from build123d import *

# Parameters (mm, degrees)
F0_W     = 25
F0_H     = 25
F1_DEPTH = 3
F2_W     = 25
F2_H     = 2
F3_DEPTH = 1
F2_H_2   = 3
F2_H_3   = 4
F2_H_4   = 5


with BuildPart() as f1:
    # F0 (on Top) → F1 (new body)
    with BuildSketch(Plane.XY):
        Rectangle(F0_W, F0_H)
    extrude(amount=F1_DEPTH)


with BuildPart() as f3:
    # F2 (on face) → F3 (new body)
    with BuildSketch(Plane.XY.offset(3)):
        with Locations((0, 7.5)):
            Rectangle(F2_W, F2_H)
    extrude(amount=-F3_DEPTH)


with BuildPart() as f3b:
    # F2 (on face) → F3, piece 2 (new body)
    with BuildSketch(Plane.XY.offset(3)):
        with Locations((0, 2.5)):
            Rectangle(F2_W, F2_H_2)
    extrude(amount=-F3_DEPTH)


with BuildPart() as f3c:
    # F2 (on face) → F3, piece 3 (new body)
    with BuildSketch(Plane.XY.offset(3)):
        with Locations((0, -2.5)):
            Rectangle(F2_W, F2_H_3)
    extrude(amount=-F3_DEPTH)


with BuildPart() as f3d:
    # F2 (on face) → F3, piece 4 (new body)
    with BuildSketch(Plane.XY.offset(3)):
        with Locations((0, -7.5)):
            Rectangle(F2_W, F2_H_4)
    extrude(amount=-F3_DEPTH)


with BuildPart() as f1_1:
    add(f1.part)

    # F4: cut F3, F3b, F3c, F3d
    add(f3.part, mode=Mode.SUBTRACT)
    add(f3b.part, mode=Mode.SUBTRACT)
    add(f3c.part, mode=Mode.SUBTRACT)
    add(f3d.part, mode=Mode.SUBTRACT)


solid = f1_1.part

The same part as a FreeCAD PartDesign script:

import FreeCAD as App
import Part
import Sketcher
Q = App.Units.Quantity

doc = App.newDocument("Part")
params = doc.addObject("Spreadsheet::Sheet", "Params")
for row, (alias, value) in enumerate([
    ("sketch1_width", "25 mm"),
    ("pad1_length", "3 mm"),
    ("sketch2_width", "25 mm"),
    ("sketch2_height", "2 mm"),
    ("pad2_length", "1 mm"),
    ("sketch3_width", "25 mm"),
    ("sketch3_height", "3 mm"),
    ("pad3_length", "1 mm"),
    ("sketch4_width", "25 mm"),
    ("sketch4_height", "4 mm"),
    ("pad4_length", "1 mm"),
    ("sketch5_width", "25 mm"),
    ("sketch5_height", "5 mm"),
    ("pad5_length", "1 mm"),
], start=1):
    params.set(f"A{row}", alias)
    params.set(f"B{row}", "=" + value)
    params.setAlias(f"B{row}", alias)

body = doc.addObject("PartDesign::Body", "Body")

sketch1 = body.newObject("Sketcher::SketchObject", "Sketch")
sketch1.AttachmentSupport = (doc.getObject("XY_Plane"), [""])
sketch1.MapMode = "FlatFace"
sketch1.addGeometry([
    Part.LineSegment(App.Vector(-12, 12, 0), App.Vector(-12, -12, 0)),
    Part.LineSegment(App.Vector(-12, -12, 0), App.Vector(12, -12, 0)),
    Part.LineSegment(App.Vector(12, -12, 0), App.Vector(12, 12, 0)),
    Part.LineSegment(App.Vector(12, 12, 0), App.Vector(-12, 12, 0)),
], False)
sketch1.addConstraint([
    Sketcher.Constraint("Coincident", 0, 2, 1, 1),
    Sketcher.Constraint("Coincident", 1, 2, 2, 1),
    Sketcher.Constraint("Coincident", 2, 2, 3, 1),
    Sketcher.Constraint("Coincident", 3, 2, 0, 1),
    Sketcher.Constraint("Vertical", 0),
    Sketcher.Constraint("Horizontal", 1),
    Sketcher.Constraint("Vertical", 2),
    Sketcher.Constraint("Horizontal", 3),
    Sketcher.Constraint("Symmetric", 0, 2, 2, 2, -1, 1),
    Sketcher.Constraint("Equal", 3, 0),
    Sketcher.Constraint("DistanceX", 1, 1, 1, 2, Q("25 mm")),
])
sketch1.setExpression("Constraints[10]", "Params.sketch1_width")
pad1 = body.newObject("PartDesign::Pad", "Pad")
pad1.Profile = sketch1
pad1.setExpression("Length", "Params.pad1_length")
body2 = doc.addObject("PartDesign::Body", "Body001")

sketch2 = body2.newObject("Sketcher::SketchObject", "Sketch001")
sketch2.AttachmentSupport = (doc.getObject("XY_Plane001"), [""])
sketch2.MapMode = "FlatFace"
sketch2.AttachmentOffset = App.Placement(App.Vector(0, 0, 3), App.Rotation())
sketch2.addGeometry([
    Part.LineSegment(App.Vector(-12.5, 8.5, 0), App.Vector(-12.5, 6.5, 0)),
    Part.LineSegment(App.Vector(-12.5, 6.5, 0), App.Vector(12.5, 6.5, 0)),
    Part.LineSegment(App.Vector(12.5, 6.5, 0), App.Vector(12.5, 8.5, 0)),
    Part.LineSegment(App.Vector(12.5, 8.5, 0), App.Vector(-12.5, 8.5, 0)),
], False)
sketch2.addConstraint([
    Sketcher.Constraint("Coincident", 0, 2, 1, 1),
    Sketcher.Constraint("Coincident", 1, 2, 2, 1),
    Sketcher.Constraint("Coincident", 2, 2, 3, 1),
    Sketcher.Constraint("Coincident", 3, 2, 0, 1),
    Sketcher.Constraint("Vertical", 0),
    Sketcher.Constraint("Horizontal", 1),
    Sketcher.Constraint("Vertical", 2),
    Sketcher.Constraint("Horizontal", 3),
    Sketcher.Constraint("DistanceX", 1, 1, 1, 2, Q("25 mm")),
    Sketcher.Constraint("DistanceY", 0, 2, 0, 1, Q("2 mm")),
    Sketcher.Constraint("DistanceX", 0, 2, -1, 1, Q("12.5 mm")),
    Sketcher.Constraint("DistanceY", -1, 1, 0, 2, Q("6.5 mm")),
])
sketch2.setExpression("Constraints[8]", "Params.sketch2_width")
sketch2.setExpression("Constraints[9]", "Params.sketch2_height")
pad2 = body2.newObject("PartDesign::Pad", "Pad001")
pad2.Profile = sketch2
pad2.setExpression("Length", "Params.pad2_length")
pad2.Reversed = True
body3 = doc.addObject("PartDesign::Body", "Body002")

sketch3 = body3.newObject("Sketcher::SketchObject", "Sketch002")
sketch3.AttachmentSupport = (doc.getObject("XY_Plane002"), [""])
sketch3.MapMode = "FlatFace"
sketch3.AttachmentOffset = App.Placement(App.Vector(0, 0, 3), App.Rotation())
sketch3.addGeometry([
    Part.LineSegment(App.Vector(-12.5, 4, 0), App.Vector(-12.5, 1, 0)),
    Part.LineSegment(App.Vector(-12.5, 1, 0), App.Vector(12.5, 1, 0)),
    Part.LineSegment(App.Vector(12.5, 1, 0), App.Vector(12.5, 4, 0)),
    Part.LineSegment(App.Vector(12.5, 4, 0), App.Vector(-12.5, 4, 0)),
], False)
sketch3.addConstraint([
    Sketcher.Constraint("Coincident", 0, 2, 1, 1),
    Sketcher.Constraint("Coincident", 1, 2, 2, 1),
    Sketcher.Constraint("Coincident", 2, 2, 3, 1),
    Sketcher.Constraint("Coincident", 3, 2, 0, 1),
    Sketcher.Constraint("Vertical", 0),
    Sketcher.Constraint("Horizontal", 1),
    Sketcher.Constraint("Vertical", 2),
    Sketcher.Constraint("Horizontal", 3),
    Sketcher.Constraint("DistanceX", 1, 1, 1, 2, Q("25 mm")),
    Sketcher.Constraint("DistanceY", 0, 2, 0, 1, Q("3 mm")),
    Sketcher.Constraint("DistanceY", -1, 1, 0, 2, Q("1 mm")),
    Sketcher.Constraint("DistanceX", 0, 2, -1, 1, Q("12.5 mm")),
])
sketch3.setExpression("Constraints[8]", "Params.sketch3_width")
sketch3.setExpression("Constraints[9]", "Params.sketch3_height")
pad3 = body3.newObject("PartDesign::Pad", "Pad002")
pad3.Profile = sketch3
pad3.setExpression("Length", "Params.pad3_length")
pad3.Reversed = True
body4 = doc.addObject("PartDesign::Body", "Body003")

sketch4 = body4.newObject("Sketcher::SketchObject", "Sketch003")
sketch4.AttachmentSupport = (doc.getObject("XY_Plane003"), [""])
sketch4.MapMode = "FlatFace"
sketch4.AttachmentOffset = App.Placement(App.Vector(0, 0, 3), App.Rotation())
sketch4.addGeometry([
    Part.LineSegment(App.Vector(-12.5, -0.5, 0), App.Vector(-12.5, -4.5, 0)),
    Part.LineSegment(App.Vector(-12.5, -4.5, 0), App.Vector(12.5, -4.5, 0)),
    Part.LineSegment(App.Vector(12.5, -4.5, 0), App.Vector(12.5, -0.5, 0)),
    Part.LineSegment(App.Vector(12.5, -0.5, 0), App.Vector(-12.5, -0.5, 0)),
], False)
sketch4.addConstraint([
    Sketcher.Constraint("Coincident", 0, 2, 1, 1),
    Sketcher.Constraint("Coincident", 1, 2, 2, 1),
    Sketcher.Constraint("Coincident", 2, 2, 3, 1),
    Sketcher.Constraint("Coincident", 3, 2, 0, 1),
    Sketcher.Constraint("Vertical", 0),
    Sketcher.Constraint("Horizontal", 1),
    Sketcher.Constraint("Vertical", 2),
    Sketcher.Constraint("Horizontal", 3),
    Sketcher.Constraint("DistanceX", 1, 1, 1, 2, Q("25 mm")),
    Sketcher.Constraint("DistanceY", 0, 2, 0, 1, Q("4 mm")),
    Sketcher.Constraint("DistanceX", 0, 2, -1, 1, Q("12.5 mm")),
    Sketcher.Constraint("DistanceY", 0, 2, -1, 1, Q("4.5 mm")),
])
sketch4.setExpression("Constraints[8]", "Params.sketch4_width")
sketch4.setExpression("Constraints[9]", "Params.sketch4_height")
pad4 = body4.newObject("PartDesign::Pad", "Pad003")
pad4.Profile = sketch4
pad4.setExpression("Length", "Params.pad4_length")
pad4.Reversed = True
body5 = doc.addObject("PartDesign::Body", "Body004")

sketch5 = body5.newObject("Sketcher::SketchObject", "Sketch004")
sketch5.AttachmentSupport = (doc.getObject("XY_Plane004"), [""])
sketch5.MapMode = "FlatFace"
sketch5.AttachmentOffset = App.Placement(App.Vector(0, 0, 3), App.Rotation())
sketch5.addGeometry([
    Part.LineSegment(App.Vector(-12, -5, 0), App.Vector(-12, -10, 0)),
    Part.LineSegment(App.Vector(-12, -10, 0), App.Vector(12, -10, 0)),
    Part.LineSegment(App.Vector(12, -10, 0), App.Vector(12, -5, 0)),
    Part.LineSegment(App.Vector(12, -5, 0), App.Vector(-12, -5, 0)),
], False)
sketch5.addConstraint([
    Sketcher.Constraint("Coincident", 0, 2, 1, 1),
    Sketcher.Constraint("Coincident", 1, 2, 2, 1),
    Sketcher.Constraint("Coincident", 2, 2, 3, 1),
    Sketcher.Constraint("Coincident", 3, 2, 0, 1),
    Sketcher.Constraint("Vertical", 0),
    Sketcher.Constraint("Horizontal", 1),
    Sketcher.Constraint("Vertical", 2),
    Sketcher.Constraint("Horizontal", 3),
    Sketcher.Constraint("DistanceX", 1, 1, 1, 2, Q("25 mm")),
    Sketcher.Constraint("DistanceY", 0, 2, 0, 1, Q("5 mm")),
    Sketcher.Constraint("DistanceY", 0, 2, -1, 1, Q("10 mm")),
    Sketcher.Constraint("DistanceX", 0, 2, -1, 1, Q("12.5 mm")),
])
sketch5.setExpression("Constraints[8]", "Params.sketch5_width")
sketch5.setExpression("Constraints[9]", "Params.sketch5_height")
pad5 = body5.newObject("PartDesign::Pad", "Pad004")
pad5.Profile = sketch5
pad5.setExpression("Length", "Params.pad5_length")
pad5.Reversed = True
doc.recompute()

boolean = body.newObject("PartDesign::Boolean", "Boolean")
boolean.Type = "Cut"
boolean.addObjects([body2])
doc.recompute()

boolean2 = body.newObject("PartDesign::Boolean", "Boolean001")
boolean2.Type = "Cut"
boolean2.addObjects([body3])
doc.recompute()

boolean3 = body.newObject("PartDesign::Boolean", "Boolean002")
boolean3.Type = "Cut"
boolean3.addObjects([body4])
doc.recompute()

boolean4 = body.newObject("PartDesign::Boolean", "Boolean003")
boolean4.Type = "Cut"
boolean4.addObjects([body5])

doc.recompute()
